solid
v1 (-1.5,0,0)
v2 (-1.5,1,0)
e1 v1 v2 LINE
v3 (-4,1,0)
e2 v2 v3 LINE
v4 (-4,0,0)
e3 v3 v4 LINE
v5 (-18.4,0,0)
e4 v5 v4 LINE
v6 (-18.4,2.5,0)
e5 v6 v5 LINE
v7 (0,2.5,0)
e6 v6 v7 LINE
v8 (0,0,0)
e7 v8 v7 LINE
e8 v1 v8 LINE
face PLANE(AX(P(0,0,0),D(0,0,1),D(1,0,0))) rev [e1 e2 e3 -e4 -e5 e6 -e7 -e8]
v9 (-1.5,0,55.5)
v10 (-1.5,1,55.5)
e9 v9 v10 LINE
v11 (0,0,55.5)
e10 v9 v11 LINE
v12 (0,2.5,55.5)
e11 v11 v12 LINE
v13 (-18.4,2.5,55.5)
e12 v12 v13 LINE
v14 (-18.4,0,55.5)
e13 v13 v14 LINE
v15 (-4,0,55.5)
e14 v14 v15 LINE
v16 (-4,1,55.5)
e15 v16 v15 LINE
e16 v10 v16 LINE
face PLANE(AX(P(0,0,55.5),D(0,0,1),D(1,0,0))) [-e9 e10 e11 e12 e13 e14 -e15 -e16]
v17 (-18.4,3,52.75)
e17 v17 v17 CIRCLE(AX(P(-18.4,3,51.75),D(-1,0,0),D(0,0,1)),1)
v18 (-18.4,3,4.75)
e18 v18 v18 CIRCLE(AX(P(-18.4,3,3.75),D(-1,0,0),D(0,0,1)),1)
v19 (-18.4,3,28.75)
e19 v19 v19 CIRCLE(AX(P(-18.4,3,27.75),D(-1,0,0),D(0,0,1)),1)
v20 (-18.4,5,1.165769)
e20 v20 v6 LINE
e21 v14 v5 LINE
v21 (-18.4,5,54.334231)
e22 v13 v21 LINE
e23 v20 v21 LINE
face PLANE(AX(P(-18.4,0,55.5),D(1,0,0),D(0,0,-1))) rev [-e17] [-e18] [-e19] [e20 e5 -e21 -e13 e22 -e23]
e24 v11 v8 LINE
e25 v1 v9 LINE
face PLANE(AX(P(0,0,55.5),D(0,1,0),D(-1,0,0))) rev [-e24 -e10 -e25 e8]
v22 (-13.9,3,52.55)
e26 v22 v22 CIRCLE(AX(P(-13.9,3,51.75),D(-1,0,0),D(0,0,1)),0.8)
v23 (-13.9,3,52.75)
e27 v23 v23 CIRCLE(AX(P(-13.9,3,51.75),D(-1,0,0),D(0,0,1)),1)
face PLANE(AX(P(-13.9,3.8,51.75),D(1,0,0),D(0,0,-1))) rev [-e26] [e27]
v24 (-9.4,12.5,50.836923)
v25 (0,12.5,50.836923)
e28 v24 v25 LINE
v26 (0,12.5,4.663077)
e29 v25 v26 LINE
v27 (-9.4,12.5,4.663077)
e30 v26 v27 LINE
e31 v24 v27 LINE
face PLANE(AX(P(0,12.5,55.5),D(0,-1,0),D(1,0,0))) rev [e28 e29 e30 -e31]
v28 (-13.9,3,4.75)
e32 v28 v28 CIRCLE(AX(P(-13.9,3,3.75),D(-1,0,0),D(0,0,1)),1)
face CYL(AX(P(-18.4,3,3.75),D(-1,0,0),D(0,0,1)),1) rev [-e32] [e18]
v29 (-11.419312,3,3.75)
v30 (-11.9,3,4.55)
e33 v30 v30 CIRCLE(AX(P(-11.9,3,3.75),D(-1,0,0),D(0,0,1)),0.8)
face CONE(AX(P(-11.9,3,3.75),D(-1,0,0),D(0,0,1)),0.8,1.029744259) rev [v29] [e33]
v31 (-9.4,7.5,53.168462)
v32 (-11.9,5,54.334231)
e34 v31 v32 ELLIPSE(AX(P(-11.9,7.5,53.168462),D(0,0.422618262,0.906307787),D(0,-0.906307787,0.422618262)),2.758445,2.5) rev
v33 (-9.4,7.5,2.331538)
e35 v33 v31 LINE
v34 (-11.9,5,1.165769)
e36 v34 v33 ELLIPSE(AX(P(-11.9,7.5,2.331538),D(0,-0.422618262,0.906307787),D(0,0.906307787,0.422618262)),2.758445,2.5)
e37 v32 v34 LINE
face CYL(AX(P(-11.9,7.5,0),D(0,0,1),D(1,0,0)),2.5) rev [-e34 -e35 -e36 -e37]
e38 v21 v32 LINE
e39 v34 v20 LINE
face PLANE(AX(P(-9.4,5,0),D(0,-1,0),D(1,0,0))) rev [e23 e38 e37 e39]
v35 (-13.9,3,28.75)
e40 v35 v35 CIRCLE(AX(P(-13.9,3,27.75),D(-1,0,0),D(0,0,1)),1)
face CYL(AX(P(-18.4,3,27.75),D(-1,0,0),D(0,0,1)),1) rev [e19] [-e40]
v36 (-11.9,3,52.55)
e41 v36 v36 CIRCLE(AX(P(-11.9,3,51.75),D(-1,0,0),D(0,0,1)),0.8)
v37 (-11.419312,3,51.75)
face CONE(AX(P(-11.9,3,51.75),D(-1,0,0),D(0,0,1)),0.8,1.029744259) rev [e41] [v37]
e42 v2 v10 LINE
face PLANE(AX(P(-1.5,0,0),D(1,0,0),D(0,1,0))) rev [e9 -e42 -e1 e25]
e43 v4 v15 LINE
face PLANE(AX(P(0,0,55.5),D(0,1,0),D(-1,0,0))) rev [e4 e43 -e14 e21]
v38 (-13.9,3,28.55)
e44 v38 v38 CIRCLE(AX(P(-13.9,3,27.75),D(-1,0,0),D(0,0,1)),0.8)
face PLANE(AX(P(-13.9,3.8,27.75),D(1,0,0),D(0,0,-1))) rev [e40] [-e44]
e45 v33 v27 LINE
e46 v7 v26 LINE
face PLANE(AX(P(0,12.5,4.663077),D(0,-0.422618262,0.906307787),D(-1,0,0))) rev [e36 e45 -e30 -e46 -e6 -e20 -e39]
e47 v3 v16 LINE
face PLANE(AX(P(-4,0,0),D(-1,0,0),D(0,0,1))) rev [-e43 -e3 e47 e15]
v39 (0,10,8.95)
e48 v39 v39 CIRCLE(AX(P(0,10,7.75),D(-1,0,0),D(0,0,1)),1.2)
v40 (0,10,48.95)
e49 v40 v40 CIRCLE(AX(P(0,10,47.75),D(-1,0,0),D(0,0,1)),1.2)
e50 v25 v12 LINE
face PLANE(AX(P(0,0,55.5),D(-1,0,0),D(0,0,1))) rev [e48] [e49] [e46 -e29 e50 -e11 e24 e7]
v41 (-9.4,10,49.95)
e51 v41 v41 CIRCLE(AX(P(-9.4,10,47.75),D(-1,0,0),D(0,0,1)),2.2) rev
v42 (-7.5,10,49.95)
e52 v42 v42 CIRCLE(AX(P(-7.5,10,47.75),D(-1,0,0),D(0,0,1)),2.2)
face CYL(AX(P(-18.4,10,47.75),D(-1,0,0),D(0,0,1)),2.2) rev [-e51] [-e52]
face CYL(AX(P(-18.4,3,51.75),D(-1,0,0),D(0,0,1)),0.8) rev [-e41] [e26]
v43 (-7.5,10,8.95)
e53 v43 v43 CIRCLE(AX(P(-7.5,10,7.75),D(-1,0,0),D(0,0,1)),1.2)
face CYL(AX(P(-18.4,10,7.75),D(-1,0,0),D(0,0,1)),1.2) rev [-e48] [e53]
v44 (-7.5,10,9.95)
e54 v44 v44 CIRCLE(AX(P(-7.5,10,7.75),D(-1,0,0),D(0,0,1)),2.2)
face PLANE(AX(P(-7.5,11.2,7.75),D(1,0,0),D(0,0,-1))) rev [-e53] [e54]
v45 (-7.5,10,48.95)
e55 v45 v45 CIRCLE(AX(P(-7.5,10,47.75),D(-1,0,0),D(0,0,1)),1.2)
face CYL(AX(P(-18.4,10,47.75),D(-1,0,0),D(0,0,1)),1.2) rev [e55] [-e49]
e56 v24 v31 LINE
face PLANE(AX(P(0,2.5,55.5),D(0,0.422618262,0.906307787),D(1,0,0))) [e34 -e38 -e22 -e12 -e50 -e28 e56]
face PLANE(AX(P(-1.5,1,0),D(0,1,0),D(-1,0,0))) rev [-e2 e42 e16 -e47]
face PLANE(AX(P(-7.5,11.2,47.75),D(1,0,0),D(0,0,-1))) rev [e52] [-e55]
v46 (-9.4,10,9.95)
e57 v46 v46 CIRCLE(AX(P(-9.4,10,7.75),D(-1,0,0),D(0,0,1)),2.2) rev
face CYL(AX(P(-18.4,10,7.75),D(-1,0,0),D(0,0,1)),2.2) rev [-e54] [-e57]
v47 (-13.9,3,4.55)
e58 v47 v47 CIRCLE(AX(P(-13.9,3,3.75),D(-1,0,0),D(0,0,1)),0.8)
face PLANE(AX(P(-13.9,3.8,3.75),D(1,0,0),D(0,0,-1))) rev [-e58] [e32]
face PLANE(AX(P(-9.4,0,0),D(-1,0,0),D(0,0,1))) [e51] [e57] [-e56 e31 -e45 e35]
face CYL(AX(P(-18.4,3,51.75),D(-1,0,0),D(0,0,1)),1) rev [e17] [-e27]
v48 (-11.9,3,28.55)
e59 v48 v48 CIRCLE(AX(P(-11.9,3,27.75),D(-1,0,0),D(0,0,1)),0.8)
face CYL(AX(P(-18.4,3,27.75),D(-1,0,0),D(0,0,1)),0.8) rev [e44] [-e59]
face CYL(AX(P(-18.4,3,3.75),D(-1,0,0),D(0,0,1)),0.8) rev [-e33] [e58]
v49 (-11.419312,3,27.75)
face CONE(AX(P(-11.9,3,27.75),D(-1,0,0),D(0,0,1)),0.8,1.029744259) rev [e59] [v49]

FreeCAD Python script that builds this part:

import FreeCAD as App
import Part
import Sketcher
Q = App.Units.Quantity


def edges_at(feature, points):
    """Names of the edges that pass closest to the given points."""
    edges = feature.Shape.Edges
    near = lambda p: min(range(len(edges)), key=lambda i: edges[i].distToShape(Part.Vertex(*p))[0])
    return sorted({f"Edge{near(p) + 1}" for p in points})


def add_polygon(sketch, points):
    """Adds a closed chain of lines whose ends are joined by coincident constraints."""
    first, n = sketch.GeometryCount, len(points)
    for a, b in zip(points, points[1:] + points[:1]):
        sketch.addGeometry(Part.LineSegment(App.Vector(*a, 0), App.Vector(*b, 0)), False)
    for i in range(n):
        sketch.addConstraint(Sketcher.Constraint("Coincident", first + i, 2, first + (i + 1) % n, 1))

doc = App.newDocument("Part")
body = doc.addObject("PartDesign::Body", "Body")

sketch1 = body.newObject("Sketcher::SketchObject", "Sketch")
sketch1.AttachmentSupport = (doc.getObject("XY_Plane"), [""])
sketch1.MapMode = "FlatFace"
add_polygon(sketch1, [(-18, 12), (-18, 0), (0, 0), (0, 12)])
sketch1.addConstraint(Sketcher.Constraint("Vertical", 0))
sketch1.addConstraint(Sketcher.Constraint("Horizontal", 1))
sketch1.addConstraint(Sketcher.Constraint("Vertical", 2))
sketch1.addConstraint(Sketcher.Constraint("Horizontal", 3))
sketch1.addConstraint(Sketcher.Constraint("Coincident", 1, 2, -1, 1))
sketch1.addConstraint(Sketcher.Constraint("DistanceX", 1, 1, 1, 2, Q("18.4 mm")))
sketch1.addConstraint(Sketcher.Constraint("DistanceY", 0, 2, 0, 1, Q("12.5 mm")))
pad1 = body.newObject("PartDesign::Pad", "Pad")
pad1.Profile = sketch1
pad1.Length = 55.5

sketch2 = body.newObject("Sketcher::SketchObject", "Sketch001")
sketch2.AttachmentSupport = (doc.getObject("XY_Plane"), [""])
sketch2.MapMode = "FlatFace"
sketch2.AttachmentOffset = App.Placement(App.Vector(0, 0, 55.5), App.Rotation())
add_polygon(sketch2, [(-4, 1), (-4, 0), (-1.5, 0), (-1.5, 1)])
sketch2.addConstraint(Sketcher.Constraint("Vertical", 0))
sketch2.addConstraint(Sketcher.Constraint("Horizontal", 1))
sketch2.addConstraint(Sketcher.Constraint("Vertical", 2))
sketch2.addConstraint(Sketcher.Constraint("Horizontal", 3))
sketch2.addConstraint(Sketcher.Constraint("PointOnObject", 0, 2, -1))
sketch2.addConstraint(Sketcher.Constraint("DistanceY", 0, 2, 0, 1, Q("1 mm")))
sketch2.addConstraint(Sketcher.Constraint("DistanceX", 1, 1, 1, 2, Q("2.5 mm")))
sketch2.addConstraint(Sketcher.Constraint("DistanceX", 0, 2, -1, 1, Q("4 mm")))
pocket1 = body.newObject("PartDesign::Pocket", "Pocket")
pocket1.Profile = sketch2
pocket1.Type = "ThroughAll"

sketch3 = body.newObject("Sketcher::SketchObject", "Sketch002")
sketch3.AttachmentSupport = (doc.getObject("YZ_Plane"), [""])
sketch3.MapMode = "FlatFace"
sketch3.AttachmentOffset = App.Placement(App.Vector(0, 0, -18.4), App.Rotation())
sketch3.addGeometry(Part.Circle(App.Vector(3, 51.8, 0), App.Vector(0, 0, 1), 0.8), False)
sketch3.addGeometry(Part.Circle(App.Vector(3, 27.8, 0), App.Vector(0, 0, 1), 0.8), False)
sketch3.addGeometry(Part.Circle(App.Vector(3, 3.8, 0), App.Vector(0, 0, 1), 0.8), False)
sketch3.addConstraint(Sketcher.Constraint("Equal", 0, 1))
sketch3.addConstraint(Sketcher.Constraint("Equal", 1, 2))
sketch3.addConstraint(Sketcher.Constraint("Vertical", 0, 3, 1, 3))
sketch3.addConstraint(Sketcher.Constraint("Vertical", 1, 3, 2, 3))
sketch3.addConstraint(Sketcher.Constraint("Diameter", 0, Q("1.6 mm")))
sketch3.addConstraint(Sketcher.Constraint("DistanceX", -1, 1, 0, 3, Q("3 mm")))
sketch3.addConstraint(Sketcher.Constraint("DistanceY", 1, 3, 0, 3, Q("24 mm")))
sketch3.addConstraint(Sketcher.Constraint("DistanceY", 2, 3, 1, 3, Q("24 mm")))
sketch3.addConstraint(Sketcher.Constraint("DistanceY", -1, 1, 0, 3, Q("51.75 mm")))
doc.recompute()
hole = body.newObject("PartDesign::Hole", "Hole")
hole.Profile = sketch3
hole.ThreadType = "None"
hole.Diameter = 1.6
hole.DepthType = "Dimension"
hole.Depth = 6.5
hole.DrillPoint = "Angled"
hole.DrillPointAngle = 118
hole.HoleCutType = "Counterbore"
hole.HoleCutDiameter = 2
hole.HoleCutDepth = 4.5
hole.Reversed = True

sketch4 = body.newObject("Sketcher::SketchObject", "Sketch003")
sketch4.AttachmentSupport = (doc.getObject("YZ_Plane"), [""])
sketch4.MapMode = "FlatFace"
sketch4.AttachmentOffset = App.Placement(App.Vector(0, 0, -18.4), App.Rotation())
sketch4.addGeometry(Part.Circle(App.Vector(10, 47.8, 0), App.Vector(0, 0, 1), 1.2), False)
sketch4.addGeometry(Part.Circle(App.Vector(10, 7.8, 0), App.Vector(0, 0, 1), 1.2), False)
sketch4.addConstraint(Sketcher.Constraint("Equal", 0, 1))
sketch4.addConstraint(Sketcher.Constraint("Vertical", 0, 3, 1, 3))
sketch4.addConstraint(Sketcher.Constraint("Diameter", 0, Q("2.4 mm")))
sketch4.addConstraint(Sketcher.Constraint("DistanceX", -1, 1, 0, 3, Q("10 mm")))
sketch4.addConstraint(Sketcher.Constraint("DistanceY", 1, 3, 0, 3, Q("40 mm")))
sketch4.addConstraint(Sketcher.Constraint("DistanceY", -1, 1, 0, 3, Q("47.75 mm")))
doc.recompute()
hole2 = body.newObject("PartDesign::Hole", "Hole001")
hole2.Profile = sketch4
hole2.ThreadType = "None"
hole2.Diameter = 2.4
hole2.DepthType = "ThroughAll"
hole2.HoleCutType = "Counterbore"
hole2.HoleCutDiameter = 4.4
hole2.HoleCutDepth = 10.9
hole2.Reversed = True
doc.recompute()

chamfer = body.newObject("PartDesign::Chamfer", "Chamfer")
chamfer.Base = (hole2, edges_at(hole2, [(-9.2, 12.5, 0)]))
chamfer.ChamferType = "Two distances"
chamfer.Size = 10
chamfer.Size2 = 4.663077
chamfer.FlipDirection = True
doc.recompute()

chamfer2 = body.newObject("PartDesign::Chamfer", "Chamfer001")
chamfer2.Base = (chamfer, edges_at(chamfer, [(-9.2, 12.5, 55.5)]))
chamfer2.ChamferType = "Two distances"
chamfer2.Size = 10
chamfer2.Size2 = 4.663077
chamfer2.FlipDirection = True

sketch5 = body.newObject("Sketcher::SketchObject", "Sketch004")
sketch5.AttachmentSupport = (doc.getObject("YZ_Plane"), [""])
sketch5.MapMode = "FlatFace"
sketch5.AttachmentOffset = App.Placement(App.Vector(0, 0, -18.4), App.Rotation())
add_polygon(sketch5, [(12, 0), (5, 0), (5, 56), (12, 56)])
sketch5.addConstraint(Sketcher.Constraint("Horizontal", 0))
sketch5.addConstraint(Sketcher.Constraint("Vertical", 1))
sketch5.addConstraint(Sketcher.Constraint("Horizontal", 2))
sketch5.addConstraint(Sketcher.Constraint("Vertical", 3))
sketch5.addConstraint(Sketcher.Constraint("PointOnObject", 0, 2, -1))
sketch5.addConstraint(Sketcher.Constraint("DistanceX", 0, 2, 0, 1, Q("7.5 mm")))
sketch5.addConstraint(Sketcher.Constraint("DistanceY", 1, 1, 1, 2, Q("55.5 mm")))
sketch5.addConstraint(Sketcher.Constraint("DistanceX", -1, 1, 0, 2, Q("5 mm")))
pocket2 = body.newObject("PartDesign::Pocket", "Pocket001")
pocket2.Profile = sketch5
pocket2.Length = 9
pocket2.Reversed = True
doc.recompute()

fillet = body.newObject("PartDesign::Fillet", "Fillet")
fillet.Base = (pocket2, edges_at(pocket2, [(-9.4, 5, 27.75)]))
fillet.Radius = 2.5

doc.recompute()
